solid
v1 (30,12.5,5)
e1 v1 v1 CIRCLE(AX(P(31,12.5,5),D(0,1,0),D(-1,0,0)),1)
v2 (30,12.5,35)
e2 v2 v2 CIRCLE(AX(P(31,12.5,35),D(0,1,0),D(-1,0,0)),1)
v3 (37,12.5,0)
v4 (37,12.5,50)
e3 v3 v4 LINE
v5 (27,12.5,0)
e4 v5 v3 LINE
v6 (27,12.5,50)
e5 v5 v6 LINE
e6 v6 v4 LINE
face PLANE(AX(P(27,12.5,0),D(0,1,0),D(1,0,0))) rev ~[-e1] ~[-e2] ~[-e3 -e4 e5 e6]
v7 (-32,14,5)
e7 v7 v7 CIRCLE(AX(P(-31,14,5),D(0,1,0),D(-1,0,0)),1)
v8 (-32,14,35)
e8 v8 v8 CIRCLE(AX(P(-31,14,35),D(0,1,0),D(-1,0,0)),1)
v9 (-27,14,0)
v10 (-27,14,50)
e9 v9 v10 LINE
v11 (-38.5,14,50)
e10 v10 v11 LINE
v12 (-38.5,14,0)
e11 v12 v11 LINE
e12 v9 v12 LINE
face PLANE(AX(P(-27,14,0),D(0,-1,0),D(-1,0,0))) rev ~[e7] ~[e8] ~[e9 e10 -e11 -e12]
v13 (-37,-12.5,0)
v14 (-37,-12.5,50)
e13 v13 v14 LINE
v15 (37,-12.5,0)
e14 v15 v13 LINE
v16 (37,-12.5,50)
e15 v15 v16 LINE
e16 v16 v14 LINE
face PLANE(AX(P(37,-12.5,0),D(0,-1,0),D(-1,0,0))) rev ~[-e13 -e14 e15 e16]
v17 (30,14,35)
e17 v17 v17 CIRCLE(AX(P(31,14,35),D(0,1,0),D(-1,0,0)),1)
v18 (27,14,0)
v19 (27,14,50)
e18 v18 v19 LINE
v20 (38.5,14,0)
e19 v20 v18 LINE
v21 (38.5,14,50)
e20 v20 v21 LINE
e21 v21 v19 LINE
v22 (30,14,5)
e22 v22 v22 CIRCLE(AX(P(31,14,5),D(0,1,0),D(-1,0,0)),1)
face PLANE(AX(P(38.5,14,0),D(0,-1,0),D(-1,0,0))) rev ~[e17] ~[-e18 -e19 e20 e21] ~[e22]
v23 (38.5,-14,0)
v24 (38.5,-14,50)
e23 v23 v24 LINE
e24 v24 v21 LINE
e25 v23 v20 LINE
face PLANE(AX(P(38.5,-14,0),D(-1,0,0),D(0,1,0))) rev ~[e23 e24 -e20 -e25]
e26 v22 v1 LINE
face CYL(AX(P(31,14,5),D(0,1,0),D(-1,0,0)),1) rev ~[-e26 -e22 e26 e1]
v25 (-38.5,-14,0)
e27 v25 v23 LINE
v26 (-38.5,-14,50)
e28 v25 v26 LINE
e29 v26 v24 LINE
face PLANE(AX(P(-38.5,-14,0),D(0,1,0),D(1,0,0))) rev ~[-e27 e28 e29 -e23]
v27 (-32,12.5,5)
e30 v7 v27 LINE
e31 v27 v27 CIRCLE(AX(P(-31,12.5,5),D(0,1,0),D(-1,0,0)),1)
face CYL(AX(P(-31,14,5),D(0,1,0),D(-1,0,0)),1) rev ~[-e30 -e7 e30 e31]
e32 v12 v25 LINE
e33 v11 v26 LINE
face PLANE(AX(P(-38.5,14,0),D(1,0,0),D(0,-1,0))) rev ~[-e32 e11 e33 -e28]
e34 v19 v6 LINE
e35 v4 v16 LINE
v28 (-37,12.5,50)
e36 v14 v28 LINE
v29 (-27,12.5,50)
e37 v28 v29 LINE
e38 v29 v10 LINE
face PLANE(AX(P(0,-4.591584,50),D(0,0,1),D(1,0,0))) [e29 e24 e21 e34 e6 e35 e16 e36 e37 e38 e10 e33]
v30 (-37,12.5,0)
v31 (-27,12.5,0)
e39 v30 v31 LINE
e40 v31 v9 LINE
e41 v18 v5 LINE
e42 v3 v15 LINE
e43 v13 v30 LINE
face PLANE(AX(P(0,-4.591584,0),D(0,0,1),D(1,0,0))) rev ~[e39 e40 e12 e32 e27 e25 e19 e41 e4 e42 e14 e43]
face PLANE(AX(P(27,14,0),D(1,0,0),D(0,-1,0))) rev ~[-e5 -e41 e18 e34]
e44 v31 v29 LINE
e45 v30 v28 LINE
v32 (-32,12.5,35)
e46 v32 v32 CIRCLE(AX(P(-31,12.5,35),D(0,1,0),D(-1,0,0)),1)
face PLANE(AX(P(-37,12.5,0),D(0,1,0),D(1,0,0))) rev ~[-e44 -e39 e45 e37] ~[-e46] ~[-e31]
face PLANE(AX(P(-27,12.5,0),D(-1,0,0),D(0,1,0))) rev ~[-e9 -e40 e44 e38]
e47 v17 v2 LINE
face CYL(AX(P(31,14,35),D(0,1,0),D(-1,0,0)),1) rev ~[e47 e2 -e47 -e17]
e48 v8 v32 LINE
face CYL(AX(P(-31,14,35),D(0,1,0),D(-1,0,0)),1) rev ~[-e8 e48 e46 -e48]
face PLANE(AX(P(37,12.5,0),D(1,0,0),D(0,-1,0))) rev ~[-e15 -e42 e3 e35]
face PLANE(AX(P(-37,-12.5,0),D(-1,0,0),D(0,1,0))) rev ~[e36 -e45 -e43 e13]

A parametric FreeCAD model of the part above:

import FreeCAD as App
import Part
import Sketcher

V = App.Vector
Q = App.Units.Quantity


def add_polygon(sketch, points):
    """Adds a closed chain of lines whose ends are joined by coincident constraints."""
    first, n = sketch.GeometryCount, len(points)
    for a, b in zip(points, points[1:] + points[:1]):
        sketch.addGeometry(Part.LineSegment(App.Vector(*a, 0), App.Vector(*b, 0)), False)
    for i in range(n):
        sketch.addConstraint(Sketcher.Constraint("Coincident", first + i, 2, first + (i + 1) % n, 1))

doc = App.newDocument("Part")
body = doc.addObject("PartDesign::Body", "Body")

sketch1 = body.newObject("Sketcher::SketchObject", "Sketch")
sketch1.AttachmentSupport = (doc.getObject("XY_Plane"), [""])
sketch1.MapMode = "FlatFace"
add_polygon(sketch1, [(-27, 14), (-38.5, 14), (-38.5, -14), (38.5, -14), (38.5, 14), (27, 14), (27, 12.5), (37, 12.5), (37, -12.5), (-37, -12.5), (-37, 12.5), (-27, 12.5)])
sketch1.addConstraint([
    Sketcher.Constraint("Horizontal", 0),
    Sketcher.Constraint("Vertical", 1),
    Sketcher.Constraint("Horizontal", 2),
    Sketcher.Constraint("Vertical", 3),
    Sketcher.Constraint("Horizontal", 4),
    Sketcher.Constraint("Vertical", 5),
    Sketcher.Constraint("Horizontal", 6),
    Sketcher.Constraint("Vertical", 7),
    Sketcher.Constraint("Horizontal", 8),
    Sketcher.Constraint("Vertical", 9),
    Sketcher.Constraint("Horizontal", 10),
    Sketcher.Constraint("Vertical", 11),
    Sketcher.Constraint("Symmetric", 0, 2, 2, 2, -1, 1),
    Sketcher.Constraint("Symmetric", 6, 2, 8, 2, -1, 1),
    Sketcher.Constraint("Symmetric", 5, 2, 10, 2, -2),
    Sketcher.Constraint("Horizontal", 0, 2, 3, 2),
    Sketcher.Constraint("DistanceX", 2, 1, 2, 2, Q("77 mm")),
    Sketcher.Constraint("DistanceX", 6, 1, 6, 2, Q("10 mm")),
    Sketcher.Constraint("DistanceX", 8, 2, 8, 1, Q("74 mm")),
    Sketcher.Constraint("DistanceY", 1, 2, 1, 1, Q("28 mm")),
    Sketcher.Constraint("DistanceY", 7, 2, 7, 1, Q("25 mm")),
])
pad1 = body.newObject("PartDesign::Pad", "Pad")
pad1.Profile = sketch1
pad1.Length = 50

sketch2 = body.newObject("Sketcher::SketchObject", "Sketch001")
sketch2.AttachmentSupport = (doc.getObject("XZ_Plane"), [""])
sketch2.MapMode = "FlatFace"
sketch2.AttachmentOffset = App.Placement(V(0, 0, -14), App.Rotation())
sketch2.addGeometry([
    Part.Circle(V(31, 5, 0), V(0, 0, 1), 1),
    Part.Circle(V(31, 35, 0), V(0, 0, 1), 1),
    Part.Circle(V(-31, 35, 0), V(0, 0, 1), 1),
    Part.Circle(V(-31, 5, 0), V(0, 0, 1), 1),
], False)
sketch2.addConstraint([
    Sketcher.Constraint("Equal", 0, 1),
    Sketcher.Constraint("Equal", 1, 2),
    Sketcher.Constraint("Equal", 2, 3),
    Sketcher.Constraint("Symmetric", 1, 3, 2, 3, -2),
    Sketcher.Constraint("Symmetric", 0, 3, 3, 3, -2),
    Sketcher.Constraint("Vertical", 0, 3, 1, 3),
    Sketcher.Constraint("Diameter", 0, Q("2 mm")),
    Sketcher.Constraint("DistanceX", -1, 1, 0, 3, Q("31 mm")),
    Sketcher.Constraint("DistanceY", -1, 1, 0, 3, Q("5 mm")),
    Sketcher.Constraint("DistanceY", -1, 1, 1, 3, Q("35 mm")),
])
pocket1 = body.newObject("PartDesign::Pocket", "Pocket")
pocket1.Profile = sketch2
pocket1.Length = 1.5
pocket1.Reversed = True

doc.recompute()
